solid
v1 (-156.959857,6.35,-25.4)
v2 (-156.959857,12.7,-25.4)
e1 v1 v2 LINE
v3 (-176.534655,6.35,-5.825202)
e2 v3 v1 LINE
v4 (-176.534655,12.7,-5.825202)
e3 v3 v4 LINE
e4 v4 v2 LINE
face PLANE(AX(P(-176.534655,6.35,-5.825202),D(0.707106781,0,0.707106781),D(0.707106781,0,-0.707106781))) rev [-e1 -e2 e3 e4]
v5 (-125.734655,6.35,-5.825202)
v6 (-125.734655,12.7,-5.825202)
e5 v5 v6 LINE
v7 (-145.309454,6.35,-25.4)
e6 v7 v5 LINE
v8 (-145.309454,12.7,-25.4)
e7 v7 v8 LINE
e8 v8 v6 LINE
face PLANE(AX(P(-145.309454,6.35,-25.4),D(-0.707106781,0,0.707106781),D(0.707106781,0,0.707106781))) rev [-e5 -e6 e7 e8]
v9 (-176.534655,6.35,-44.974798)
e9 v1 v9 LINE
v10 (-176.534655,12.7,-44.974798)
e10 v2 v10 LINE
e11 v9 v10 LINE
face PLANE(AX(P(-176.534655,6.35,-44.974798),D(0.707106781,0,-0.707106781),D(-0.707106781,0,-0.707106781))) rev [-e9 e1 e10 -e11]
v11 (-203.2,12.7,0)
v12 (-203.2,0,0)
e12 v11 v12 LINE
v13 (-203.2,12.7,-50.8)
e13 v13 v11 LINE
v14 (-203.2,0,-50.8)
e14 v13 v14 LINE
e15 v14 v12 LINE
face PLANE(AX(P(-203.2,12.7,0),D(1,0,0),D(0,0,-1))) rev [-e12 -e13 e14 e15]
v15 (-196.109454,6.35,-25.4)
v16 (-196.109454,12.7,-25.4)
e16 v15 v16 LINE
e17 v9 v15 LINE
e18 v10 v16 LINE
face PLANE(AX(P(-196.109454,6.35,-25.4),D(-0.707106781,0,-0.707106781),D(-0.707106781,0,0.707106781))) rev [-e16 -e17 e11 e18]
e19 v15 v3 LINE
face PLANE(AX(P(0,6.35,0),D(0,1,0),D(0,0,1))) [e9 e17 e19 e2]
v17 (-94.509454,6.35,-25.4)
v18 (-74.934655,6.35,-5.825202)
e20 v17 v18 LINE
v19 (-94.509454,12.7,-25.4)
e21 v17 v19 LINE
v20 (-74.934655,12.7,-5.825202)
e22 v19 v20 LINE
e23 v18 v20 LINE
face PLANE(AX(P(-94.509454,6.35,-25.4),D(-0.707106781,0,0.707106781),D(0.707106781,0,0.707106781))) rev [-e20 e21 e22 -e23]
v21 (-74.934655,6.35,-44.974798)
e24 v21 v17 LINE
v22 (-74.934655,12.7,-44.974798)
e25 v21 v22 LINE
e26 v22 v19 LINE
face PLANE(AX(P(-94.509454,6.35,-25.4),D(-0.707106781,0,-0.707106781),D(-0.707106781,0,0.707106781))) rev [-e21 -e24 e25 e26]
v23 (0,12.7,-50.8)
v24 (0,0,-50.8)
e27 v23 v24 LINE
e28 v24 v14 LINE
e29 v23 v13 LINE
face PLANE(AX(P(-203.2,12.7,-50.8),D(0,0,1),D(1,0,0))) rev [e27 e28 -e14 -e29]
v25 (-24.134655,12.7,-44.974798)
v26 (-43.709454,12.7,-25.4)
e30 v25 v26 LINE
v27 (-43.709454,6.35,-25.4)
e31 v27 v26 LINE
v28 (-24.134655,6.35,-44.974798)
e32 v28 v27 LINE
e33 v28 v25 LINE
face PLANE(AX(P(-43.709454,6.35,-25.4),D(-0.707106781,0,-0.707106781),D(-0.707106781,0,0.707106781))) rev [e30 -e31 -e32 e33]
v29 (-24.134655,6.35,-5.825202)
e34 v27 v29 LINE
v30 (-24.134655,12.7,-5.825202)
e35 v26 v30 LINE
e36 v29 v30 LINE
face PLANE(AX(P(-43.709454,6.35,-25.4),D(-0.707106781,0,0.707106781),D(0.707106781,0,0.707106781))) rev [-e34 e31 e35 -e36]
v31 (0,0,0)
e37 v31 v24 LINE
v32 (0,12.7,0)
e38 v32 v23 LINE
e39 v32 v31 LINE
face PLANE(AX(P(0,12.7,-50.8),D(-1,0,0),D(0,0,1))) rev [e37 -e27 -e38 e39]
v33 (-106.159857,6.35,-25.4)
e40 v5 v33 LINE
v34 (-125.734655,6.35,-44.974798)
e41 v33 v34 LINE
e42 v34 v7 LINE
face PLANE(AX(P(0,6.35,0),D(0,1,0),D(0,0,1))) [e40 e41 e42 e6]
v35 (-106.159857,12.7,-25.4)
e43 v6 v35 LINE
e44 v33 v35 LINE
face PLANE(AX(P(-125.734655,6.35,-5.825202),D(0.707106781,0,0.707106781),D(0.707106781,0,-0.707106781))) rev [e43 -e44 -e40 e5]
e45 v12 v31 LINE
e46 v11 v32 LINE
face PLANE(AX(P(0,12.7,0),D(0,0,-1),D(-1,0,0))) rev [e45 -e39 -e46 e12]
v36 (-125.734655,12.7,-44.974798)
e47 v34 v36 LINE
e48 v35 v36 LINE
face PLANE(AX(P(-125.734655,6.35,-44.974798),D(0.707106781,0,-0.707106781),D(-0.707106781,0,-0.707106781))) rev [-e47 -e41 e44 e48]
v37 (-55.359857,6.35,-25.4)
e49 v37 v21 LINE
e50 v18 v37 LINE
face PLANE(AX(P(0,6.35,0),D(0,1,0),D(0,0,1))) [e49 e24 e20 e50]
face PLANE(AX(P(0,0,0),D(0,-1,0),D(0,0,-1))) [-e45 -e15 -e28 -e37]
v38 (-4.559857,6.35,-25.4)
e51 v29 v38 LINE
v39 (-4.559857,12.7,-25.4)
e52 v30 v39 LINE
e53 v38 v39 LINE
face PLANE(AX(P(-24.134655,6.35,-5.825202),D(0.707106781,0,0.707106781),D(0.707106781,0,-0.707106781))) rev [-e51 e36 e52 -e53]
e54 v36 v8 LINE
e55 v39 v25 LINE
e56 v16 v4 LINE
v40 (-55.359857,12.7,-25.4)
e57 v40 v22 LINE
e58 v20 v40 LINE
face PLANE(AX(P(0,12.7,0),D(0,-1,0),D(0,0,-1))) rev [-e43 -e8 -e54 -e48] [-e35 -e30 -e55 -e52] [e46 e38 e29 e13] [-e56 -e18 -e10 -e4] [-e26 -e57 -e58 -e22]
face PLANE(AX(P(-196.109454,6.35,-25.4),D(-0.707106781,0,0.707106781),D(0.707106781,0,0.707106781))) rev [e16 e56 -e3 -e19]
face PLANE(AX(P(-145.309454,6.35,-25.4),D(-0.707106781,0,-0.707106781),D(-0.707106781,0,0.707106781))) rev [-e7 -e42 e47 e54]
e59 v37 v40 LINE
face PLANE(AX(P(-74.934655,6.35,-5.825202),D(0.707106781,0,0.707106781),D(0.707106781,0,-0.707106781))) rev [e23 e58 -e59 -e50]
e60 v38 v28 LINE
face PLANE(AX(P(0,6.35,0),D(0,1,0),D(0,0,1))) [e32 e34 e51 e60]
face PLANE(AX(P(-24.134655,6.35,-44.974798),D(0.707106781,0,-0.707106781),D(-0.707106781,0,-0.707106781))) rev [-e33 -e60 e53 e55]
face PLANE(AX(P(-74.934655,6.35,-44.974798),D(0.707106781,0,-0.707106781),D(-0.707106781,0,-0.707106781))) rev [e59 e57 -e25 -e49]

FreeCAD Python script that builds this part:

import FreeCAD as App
import Part
import Sketcher

V = App.Vector
Q = App.Units.Quantity

doc = App.newDocument("Part")
body = doc.addObject("PartDesign::Body", "Body")

sketch1 = doc.addObject("Sketcher::SketchObject", "Sketch")
body.addObject(sketch1)
sketch1.AttachmentSupport = (doc.XZ_Plane, [""])
sketch1.MapMode = "FlatFace"
sketch1.addGeometry([
    Part.LineSegment(V(-203.2, -50.8, 0), V(-203.2, 0, 0)),
    Part.LineSegment(V(-203.2, 0, 0), V(0, 0, 0)),
    Part.LineSegment(V(0, 0, 0), V(0, -50.8, 0)),
    Part.LineSegment(V(0, -50.8, 0), V(-203.2, -50.8, 0)),
], False)
sketch1.addConstraint([
    Sketcher.Constraint("Coincident", 0, 2, 1, 1),
    Sketcher.Constraint("Coincident", 1, 2, 2, 1),
    Sketcher.Constraint("Coincident", 2, 2, 3, 1),
    Sketcher.Constraint("Coincident", 3, 2, 0, 1),
    Sketcher.Constraint("Vertical", 0),
    Sketcher.Constraint("Horizontal", 1),
    Sketcher.Constraint("Vertical", 2),
    Sketcher.Constraint("Horizontal", 3),
    Sketcher.Constraint("Coincident", 1, 2, -1, 1),
    Sketcher.Constraint("DistanceX", 1, 1, 1, 2, Q("8 in")),
    Sketcher.Constraint("DistanceY", 0, 1, 0, 2, Q("2 in")),
])
pad1 = doc.addObject("PartDesign::Pad", "Pad")
body.addObject(pad1)
pad1.Profile = sketch1
pad1.Length = Q("0.5 in")
pad1.Reversed = True

sketch2 = doc.addObject("Sketcher::SketchObject", "Sketch001")
body.addObject(sketch2)
sketch2.AttachmentSupport = (doc.XZ_Plane, [""])
sketch2.MapMode = "FlatFace"
sketch2.AttachmentOffset = App.Placement(V(0, 0, -0.5 * 25.4), App.Rotation())
sketch2.addGeometry([
    Part.LineSegment(V(-176.534655, -5.825202, 0), V(-156.959857, -25.4, 0)),
    Part.LineSegment(V(-156.959857, -25.4, 0), V(-176.534655, -44.974798, 0)),
    Part.LineSegment(V(-176.534655, -44.974798, 0), V(-196.109454, -25.4, 0)),
    Part.LineSegment(V(-196.109454, -25.4, 0), V(-176.534655, -5.825202, 0)),
    Part.LineSegment(V(-125.734655, -5.825202, 0), V(-106.159857, -25.4, 0)),
    Part.LineSegment(V(-106.159857, -25.4, 0), V(-125.734655, -44.974798, 0)),
    Part.LineSegment(V(-125.734655, -44.974798, 0), V(-145.309454, -25.4, 0)),
    Part.LineSegment(V(-145.309454, -25.4, 0), V(-125.734655, -5.825202, 0)),
    Part.LineSegment(V(-74.934655, -5.825202, 0), V(-55.359857, -25.4, 0)),
    Part.LineSegment(V(-55.359857, -25.4, 0), V(-74.934655, -44.974798, 0)),
    Part.LineSegment(V(-74.934655, -44.974798, 0), V(-94.509454, -25.4, 0)),
    Part.LineSegment(V(-94.509454, -25.4, 0), V(-74.934655, -5.825202, 0)),
    Part.LineSegment(V(-24.134655, -5.825202, 0), V(-4.559857, -25.4, 0)),
    Part.LineSegment(V(-4.559857, -25.4, 0), V(-24.134655, -44.974798, 0)),
    Part.LineSegment(V(-24.134655, -44.974798, 0), V(-43.709454, -25.4, 0)),
    Part.LineSegment(V(-43.709454, -25.4, 0), V(-24.134655, -5.825202, 0)),
], False)
sketch2.addConstraint([
    Sketcher.Constraint("Coincident", 0, 2, 1, 1),
    Sketcher.Constraint("Coincident", 1, 2, 2, 1),
    Sketcher.Constraint("Coincident", 2, 2, 3, 1),
    Sketcher.Constraint("Coincident", 3, 2, 0, 1),
    Sketcher.Constraint("Coincident", 4, 2, 5, 1),
    Sketcher.Constraint("Coincident", 5, 2, 6, 1),
    Sketcher.Constraint("Coincident", 6, 2, 7, 1),
    Sketcher.Constraint("Coincident", 7, 2, 4, 1),
    Sketcher.Constraint("Coincident", 8, 2, 9, 1),
    Sketcher.Constraint("Coincident", 9, 2, 10, 1),
    Sketcher.Constraint("Coincident", 10, 2, 11, 1),
    Sketcher.Constraint("Coincident", 11, 2, 8, 1),
    Sketcher.Constraint("Coincident", 12, 2, 13, 1),
    Sketcher.Constraint("Coincident", 13, 2, 14, 1),
    Sketcher.Constraint("Coincident", 14, 2, 15, 1),
    Sketcher.Constraint("Coincident", 15, 2, 12, 1),
    Sketcher.Constraint("Perpendicular", 0, 1),
    Sketcher.Constraint("Perpendicular", 1, 2),
    Sketcher.Constraint("Perpendicular", 2, 3),
    Sketcher.Constraint("Perpendicular", 3, 4),
    Sketcher.Constraint("Perpendicular", 4, 5),
    Sketcher.Constraint("Perpendicular", 5, 6),
    Sketcher.Constraint("Perpendicular", 6, 7),
    Sketcher.Constraint("Perpendicular", 7, 8),
    Sketcher.Constraint("Perpendicular", 8, 9),
    Sketcher.Constraint("Perpendicular", 9, 10),
    Sketcher.Constraint("Perpendicular", 10, 11),
    Sketcher.Constraint("Perpendicular", 11, 12),
    Sketcher.Constraint("Perpendicular", 12, 13),
    Sketcher.Constraint("Perpendicular", 13, 14),
    Sketcher.Constraint("Perpendicular", 14, 15),
    Sketcher.Constraint("Horizontal", 0, 2, 2, 2),
    Sketcher.Constraint("Horizontal", 2, 2, 4, 2),
    Sketcher.Constraint("Horizontal", 1, 2, 5, 2),
    Sketcher.Constraint("Horizontal", 4, 2, 6, 2),
    Sketcher.Constraint("Horizontal", 6, 2, 8, 2),
    Sketcher.Constraint("Horizontal", 5, 2, 9, 2),
    Sketcher.Constraint("Horizontal", 8, 2, 10, 2),
    Sketcher.Constraint("Horizontal", 10, 2, 12, 2),
    Sketcher.Constraint("Horizontal", 9, 2, 13, 2),
    Sketcher.Constraint("Horizontal", 12, 2, 14, 2),
    Sketcher.Constraint("Vertical", 1, 2, 3, 2),
    Sketcher.Constraint("DistanceY", 0, 2, -1, 1, Q("1 in")),
    Sketcher.Constraint("DistanceX", 0, 2, 4, 2, Q("2 in")),
    Sketcher.Constraint("DistanceX", 4, 2, 8, 2, Q("2 in")),
    Sketcher.Constraint("DistanceX", 8, 2, 12, 2, Q("2 in")),
    Sketcher.Constraint("DistanceY", 1, 2, -1, 1, 44.974798),
    Sketcher.Constraint("DistanceX", 0, 2, -1, 1, 156.959857),
])
pocket1 = doc.addObject("PartDesign::Pocket", "Pocket")
body.addObject(pocket1)
pocket1.Profile = sketch2
pocket1.Length = Q("0.25 in")
pocket1.Reversed = True

doc.recompute()
